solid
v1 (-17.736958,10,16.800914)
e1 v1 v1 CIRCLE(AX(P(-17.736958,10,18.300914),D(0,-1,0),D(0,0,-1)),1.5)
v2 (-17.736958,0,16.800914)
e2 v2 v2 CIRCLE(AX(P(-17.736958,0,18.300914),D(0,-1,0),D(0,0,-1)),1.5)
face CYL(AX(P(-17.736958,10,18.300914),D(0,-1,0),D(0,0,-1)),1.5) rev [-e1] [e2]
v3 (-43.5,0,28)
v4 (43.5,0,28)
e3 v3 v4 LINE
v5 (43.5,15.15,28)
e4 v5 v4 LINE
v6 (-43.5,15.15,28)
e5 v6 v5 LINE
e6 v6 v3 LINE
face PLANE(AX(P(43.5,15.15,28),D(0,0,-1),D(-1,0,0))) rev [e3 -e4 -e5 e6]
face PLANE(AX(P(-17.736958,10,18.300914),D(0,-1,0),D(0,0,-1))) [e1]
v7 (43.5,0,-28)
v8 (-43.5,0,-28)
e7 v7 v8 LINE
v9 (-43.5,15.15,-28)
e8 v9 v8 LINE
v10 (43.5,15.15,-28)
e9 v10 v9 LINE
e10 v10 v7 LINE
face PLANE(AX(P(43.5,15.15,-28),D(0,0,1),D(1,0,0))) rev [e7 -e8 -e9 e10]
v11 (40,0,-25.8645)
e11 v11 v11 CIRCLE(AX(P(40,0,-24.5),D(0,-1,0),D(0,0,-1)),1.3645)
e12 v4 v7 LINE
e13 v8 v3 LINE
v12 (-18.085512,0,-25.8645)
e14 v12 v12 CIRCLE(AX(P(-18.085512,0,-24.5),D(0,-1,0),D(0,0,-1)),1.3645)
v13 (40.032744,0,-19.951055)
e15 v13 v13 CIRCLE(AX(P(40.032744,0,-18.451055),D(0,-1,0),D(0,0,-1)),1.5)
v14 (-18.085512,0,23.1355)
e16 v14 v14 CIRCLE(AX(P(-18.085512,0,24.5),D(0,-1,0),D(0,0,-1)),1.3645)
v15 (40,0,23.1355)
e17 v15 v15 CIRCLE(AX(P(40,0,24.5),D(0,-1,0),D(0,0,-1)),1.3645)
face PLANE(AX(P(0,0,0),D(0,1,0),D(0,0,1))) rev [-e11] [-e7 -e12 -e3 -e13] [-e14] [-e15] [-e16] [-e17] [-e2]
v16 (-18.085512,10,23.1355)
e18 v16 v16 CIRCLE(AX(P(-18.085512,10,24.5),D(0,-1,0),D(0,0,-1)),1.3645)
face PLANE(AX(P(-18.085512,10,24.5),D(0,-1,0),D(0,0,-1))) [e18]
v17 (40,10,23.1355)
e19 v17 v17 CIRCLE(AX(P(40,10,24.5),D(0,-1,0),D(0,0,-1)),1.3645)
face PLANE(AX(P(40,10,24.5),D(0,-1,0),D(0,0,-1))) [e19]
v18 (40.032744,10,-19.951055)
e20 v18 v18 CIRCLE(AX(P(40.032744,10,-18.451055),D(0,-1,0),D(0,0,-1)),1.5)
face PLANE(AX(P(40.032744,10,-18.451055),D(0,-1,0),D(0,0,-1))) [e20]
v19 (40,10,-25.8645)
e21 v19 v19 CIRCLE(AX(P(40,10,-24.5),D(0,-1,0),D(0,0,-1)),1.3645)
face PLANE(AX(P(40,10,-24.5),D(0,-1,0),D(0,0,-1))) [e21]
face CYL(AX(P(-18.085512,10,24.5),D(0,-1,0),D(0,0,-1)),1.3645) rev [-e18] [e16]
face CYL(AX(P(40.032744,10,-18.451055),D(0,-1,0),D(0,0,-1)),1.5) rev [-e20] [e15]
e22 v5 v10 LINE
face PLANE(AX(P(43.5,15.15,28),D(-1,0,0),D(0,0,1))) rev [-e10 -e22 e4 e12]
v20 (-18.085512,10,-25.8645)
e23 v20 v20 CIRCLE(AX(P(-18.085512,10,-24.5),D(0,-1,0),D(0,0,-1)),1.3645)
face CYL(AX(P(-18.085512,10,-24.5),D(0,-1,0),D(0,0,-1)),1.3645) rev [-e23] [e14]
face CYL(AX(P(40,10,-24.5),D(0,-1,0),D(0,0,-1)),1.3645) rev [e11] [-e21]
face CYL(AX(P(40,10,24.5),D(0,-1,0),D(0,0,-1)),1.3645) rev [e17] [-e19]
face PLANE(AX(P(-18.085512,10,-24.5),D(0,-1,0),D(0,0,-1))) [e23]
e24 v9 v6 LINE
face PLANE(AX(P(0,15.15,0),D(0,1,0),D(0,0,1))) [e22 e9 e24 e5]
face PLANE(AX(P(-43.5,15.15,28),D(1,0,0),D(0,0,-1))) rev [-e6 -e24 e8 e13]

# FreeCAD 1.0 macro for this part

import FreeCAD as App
import Part
import Sketcher

V = App.Vector

doc = App.newDocument("Part")
body = doc.addObject("PartDesign::Body", "Body")

# Sketch on XZ plane
sketch1 = body.newObject("Sketcher::SketchObject", "Sketch")
sketch1.AttachmentSupport = (doc.getObject("XZ_Plane"), [""])
sketch1.MapMode = "FlatFace"
sketch1.addGeometry(Part.LineSegment(V(-44, -28, 0), V(-44, 28, 0)), False)
sketch1.addGeometry(Part.LineSegment(V(-44, 28, 0), V(44, 28, 0)), False)
sketch1.addGeometry(Part.LineSegment(V(44, 28, 0), V(44, -28, 0)), False)
sketch1.addGeometry(Part.LineSegment(V(44, -28, 0), V(-44, -28, 0)), False)
sketch1.addConstraint(Sketcher.Constraint("Coincident", 0, 2, 1, 1))
sketch1.addConstraint(Sketcher.Constraint("Coincident", 1, 2, 2, 1))
sketch1.addConstraint(Sketcher.Constraint("Coincident", 2, 2, 3, 1))
sketch1.addConstraint(Sketcher.Constraint("Coincident", 3, 2, 0, 1))
sketch1.addConstraint(Sketcher.Constraint("Vertical", 0))
sketch1.addConstraint(Sketcher.Constraint("Horizontal", 1))
sketch1.addConstraint(Sketcher.Constraint("Vertical", 2))
sketch1.addConstraint(Sketcher.Constraint("Horizontal", 3))
sketch1.addConstraint(Sketcher.Constraint("Symmetric", 0, 2, 2, 2, -1, 1))
sketch1.addConstraint(Sketcher.Constraint("DistanceX", 1, 1, 1, 2, 87.0))
sketch1.addConstraint(Sketcher.Constraint("DistanceY", 0, 1, 0, 2, 56.0))
pad1 = body.newObject("PartDesign::Pad", "Pad")
pad1.Profile = sketch1
pad1.Length = 15.15
pad1.Reversed = True

# Sketch on XZ plane
sketch2 = body.newObject("Sketcher::SketchObject", "Sketch001")
sketch2.AttachmentSupport = (doc.getObject("XZ_Plane"), [""])
sketch2.MapMode = "FlatFace"
sketch2.addGeometry(Part.Circle(V(40, 24.5, 0), V(0, 0, 1), 1.4), False)
sketch2.addGeometry(Part.Circle(V(40, -18.5, 0), V(0, 0, 1), 1.5), False)
sketch2.addGeometry(Part.Circle(V(40, -24.5, 0), V(0, 0, 1), 1.4), False)
sketch2.addGeometry(Part.Circle(V(-18.1, -24.5, 0), V(0, 0, 1), 1.4), False)
sketch2.addGeometry(Part.Circle(V(-17.7, 18.3, 0), V(0, 0, 1), 1.5), False)
sketch2.addGeometry(Part.Circle(V(-18.1, 24.5, 0), V(0, 0, 1), 1.4), False)
sketch2.addConstraint(Sketcher.Constraint("Equal", 0, 2))
sketch2.addConstraint(Sketcher.Constraint("Equal", 2, 3))
sketch2.addConstraint(Sketcher.Constraint("Equal", 1, 4))
sketch2.addConstraint(Sketcher.Constraint("Equal", 3, 5))
sketch2.addConstraint(Sketcher.Constraint("Symmetric", 0, 3, 2, 3, -1))
sketch2.addConstraint(Sketcher.Constraint("Symmetric", 3, 3, 5, 3, -1))
sketch2.addConstraint(Sketcher.Constraint("Horizontal", 2, 3, 3, 3))
sketch2.addConstraint(Sketcher.Constraint("Diameter", 1, 3.0))
sketch2.addConstraint(Sketcher.Constraint("Diameter", 0, 2.728999))
sketch2.addConstraint(Sketcher.Constraint("DistanceX", -1, 1, 0, 3, 40.0))
sketch2.addConstraint(Sketcher.Constraint("DistanceY", 2, 3, 0, 3, 49.0))
sketch2.addConstraint(Sketcher.Constraint("DistanceX", 4, 3, -1, 1, 17.736958))
sketch2.addConstraint(Sketcher.Constraint("DistanceY", 1, 3, 4, 3, 36.751969))
sketch2.addConstraint(Sketcher.Constraint("DistanceX", -1, 1, 1, 3, 40.032744))
sketch2.addConstraint(Sketcher.Constraint("DistanceY", 1, 3, -1, 1, 18.451055))
sketch2.addConstraint(Sketcher.Constraint("DistanceX", 3, 3, -1, 1, 18.085512))
pocket1 = body.newObject("PartDesign::Pocket", "Pocket")
pocket1.Profile = sketch2
pocket1.Length = 10

doc.recompute()
